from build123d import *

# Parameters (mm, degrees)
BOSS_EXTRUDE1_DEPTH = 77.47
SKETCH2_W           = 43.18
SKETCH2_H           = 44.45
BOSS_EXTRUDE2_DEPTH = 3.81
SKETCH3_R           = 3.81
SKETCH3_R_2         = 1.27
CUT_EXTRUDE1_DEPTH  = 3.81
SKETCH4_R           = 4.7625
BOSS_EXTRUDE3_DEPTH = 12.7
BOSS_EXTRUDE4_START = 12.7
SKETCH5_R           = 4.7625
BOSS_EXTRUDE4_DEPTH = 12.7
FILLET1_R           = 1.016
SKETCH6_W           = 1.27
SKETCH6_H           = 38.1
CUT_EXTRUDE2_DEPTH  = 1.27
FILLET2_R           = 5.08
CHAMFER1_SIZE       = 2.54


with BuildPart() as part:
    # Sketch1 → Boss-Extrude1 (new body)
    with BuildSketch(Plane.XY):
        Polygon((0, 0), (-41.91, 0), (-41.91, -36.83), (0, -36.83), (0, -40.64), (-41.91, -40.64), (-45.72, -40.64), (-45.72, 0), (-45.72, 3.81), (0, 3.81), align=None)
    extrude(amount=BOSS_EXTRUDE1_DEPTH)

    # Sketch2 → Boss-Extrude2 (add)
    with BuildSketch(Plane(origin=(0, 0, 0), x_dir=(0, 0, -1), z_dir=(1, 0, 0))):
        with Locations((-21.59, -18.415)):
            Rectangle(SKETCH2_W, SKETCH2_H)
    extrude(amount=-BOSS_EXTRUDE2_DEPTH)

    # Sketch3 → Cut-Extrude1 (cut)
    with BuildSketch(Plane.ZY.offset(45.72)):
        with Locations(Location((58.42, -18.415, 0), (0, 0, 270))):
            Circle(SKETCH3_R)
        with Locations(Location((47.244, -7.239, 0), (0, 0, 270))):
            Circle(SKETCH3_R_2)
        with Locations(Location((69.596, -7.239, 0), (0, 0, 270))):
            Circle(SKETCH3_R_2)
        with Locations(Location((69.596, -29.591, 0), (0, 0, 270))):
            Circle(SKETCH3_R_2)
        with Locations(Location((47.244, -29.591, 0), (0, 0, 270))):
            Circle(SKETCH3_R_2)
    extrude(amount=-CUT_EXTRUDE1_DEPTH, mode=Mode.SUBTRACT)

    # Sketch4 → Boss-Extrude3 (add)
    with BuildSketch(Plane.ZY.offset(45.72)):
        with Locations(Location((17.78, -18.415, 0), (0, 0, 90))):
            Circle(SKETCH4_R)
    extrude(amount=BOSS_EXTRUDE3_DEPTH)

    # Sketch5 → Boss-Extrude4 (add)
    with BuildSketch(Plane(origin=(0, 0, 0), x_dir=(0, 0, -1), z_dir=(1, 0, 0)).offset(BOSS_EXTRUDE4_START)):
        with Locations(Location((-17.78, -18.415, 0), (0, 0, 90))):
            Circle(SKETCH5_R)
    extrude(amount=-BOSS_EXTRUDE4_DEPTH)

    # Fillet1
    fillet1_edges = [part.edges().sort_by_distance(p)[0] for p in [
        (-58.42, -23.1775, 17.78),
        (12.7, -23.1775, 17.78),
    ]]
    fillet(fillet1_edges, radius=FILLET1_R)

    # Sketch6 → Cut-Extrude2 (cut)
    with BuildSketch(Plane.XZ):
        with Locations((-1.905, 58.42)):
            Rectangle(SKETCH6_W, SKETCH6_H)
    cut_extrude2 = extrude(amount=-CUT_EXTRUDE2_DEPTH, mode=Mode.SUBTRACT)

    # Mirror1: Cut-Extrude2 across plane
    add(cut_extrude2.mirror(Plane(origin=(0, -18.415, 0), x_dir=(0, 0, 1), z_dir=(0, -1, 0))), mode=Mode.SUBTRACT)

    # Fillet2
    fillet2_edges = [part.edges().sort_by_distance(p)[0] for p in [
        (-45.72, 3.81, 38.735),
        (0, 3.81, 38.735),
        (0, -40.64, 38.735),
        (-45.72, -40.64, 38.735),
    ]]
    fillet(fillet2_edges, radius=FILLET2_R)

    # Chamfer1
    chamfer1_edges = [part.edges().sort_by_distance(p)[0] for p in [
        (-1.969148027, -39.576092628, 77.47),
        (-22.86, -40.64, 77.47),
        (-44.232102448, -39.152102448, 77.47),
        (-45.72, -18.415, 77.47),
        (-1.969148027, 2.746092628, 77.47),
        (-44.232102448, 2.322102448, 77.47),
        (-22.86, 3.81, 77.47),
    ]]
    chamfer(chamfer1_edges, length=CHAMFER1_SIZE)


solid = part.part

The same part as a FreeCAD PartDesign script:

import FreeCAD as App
import Part
import Sketcher
Q = App.Units.Quantity


def edges_at(feature, points):
    """Names of the edges that pass closest to the given points."""
    edges = feature.Shape.Edges
    near = lambda p: min(range(len(edges)), key=lambda i: edges[i].distToShape(Part.Vertex(*p))[0])
    return sorted({f"Edge{near(p) + 1}" for p in points})


def add_polygon(sketch, points):
    """Adds a closed chain of lines whose ends are joined by coincident constraints."""
    first, n = sketch.GeometryCount, len(points)
    for a, b in zip(points, points[1:] + points[:1]):
        sketch.addGeometry(Part.LineSegment(App.Vector(*a, 0), App.Vector(*b, 0)), False)
    for i in range(n):
        sketch.addConstraint(Sketcher.Constraint("Coincident", first + i, 2, first + (i + 1) % n, 1))

doc = App.newDocument("Part")
body = doc.addObject("PartDesign::Body", "Body")

sketch1 = body.newObject("Sketcher::SketchObject", "Sketch")
sketch1.AttachmentSupport = (doc.getObject("XY_Plane"), [""])
sketch1.MapMode = "FlatFace"
add_polygon(sketch1, [(-41.9, 0), (0, 0), (0, 3.8), (-45.7, 3.8), (-45.7, -40.6), (0, -40.6), (0, -36.8), (-41.9, -36.8)])
sketch1.addConstraint(Sketcher.Constraint("Horizontal", 0))
sketch1.addConstraint(Sketcher.Constraint("Vertical", 1))
sketch1.addConstraint(Sketcher.Constraint("Horizontal", 2))
sketch1.addConstraint(Sketcher.Constraint("Vertical", 3))
sketch1.addConstraint(Sketcher.Constraint("Horizontal", 4))
sketch1.addConstraint(Sketcher.Constraint("Vertical", 5))
sketch1.addConstraint(Sketcher.Constraint("Horizontal", 6))
sketch1.addConstraint(Sketcher.Constraint("Vertical", 7))
sketch1.addConstraint(Sketcher.Constraint("Coincident", 0, 2, -1, 1))
sketch1.addConstraint(Sketcher.Constraint("PointOnObject", 4, 2, -2))
sketch1.addConstraint(Sketcher.Constraint("Equal", 1, 5))
sketch1.addConstraint(Sketcher.Constraint("DistanceX", 2, 2, 2, 1, Q("1.8 in")))
sketch1.addConstraint(Sketcher.Constraint("DistanceX", 0, 1, 0, 2, Q("1.65 in")))
sketch1.addConstraint(Sketcher.Constraint("DistanceY", 1, 1, 1, 2, Q("0.15 in")))
sketch1.addConstraint(Sketcher.Constraint("DistanceY", 3, 2, 3, 1, Q("1.75 in")))
pad1 = body.newObject("PartDesign::Pad", "Pad")
pad1.Profile = sketch1
pad1.Length = Q("3.05 in")

sketch2 = body.newObject("Sketcher::SketchObject", "Sketch001")
sketch2.AttachmentSupport = (doc.getObject("YZ_Plane"), [""])
sketch2.MapMode = "FlatFace"
add_polygon(sketch2, [(4, 43), (-41, 43), (-41, 0), (4, 0)])
sketch2.addConstraint(Sketcher.Constraint("Horizontal", 0))
sketch2.addConstraint(Sketcher.Constraint("Vertical", 1))
sketch2.addConstraint(Sketcher.Constraint("Horizontal", 2))
sketch2.addConstraint(Sketcher.Constraint("Vertical", 3))
sketch2.addConstraint(Sketcher.Constraint("PointOnObject", 1, 2, -1))
sketch2.addConstraint(Sketcher.Constraint("DistanceY", 1, 2, 1, 1, Q("1.7 in")))
sketch2.addConstraint(Sketcher.Constraint("DistanceX", 0, 2, 0, 1, Q("1.75 in")))
sketch2.addConstraint(Sketcher.Constraint("DistanceX", 0, 2, -1, 1, Q("1.6 in")))
pad2 = body.newObject("PartDesign::Pad", "Pad001")
pad2.Profile = sketch2
pad2.Length = Q("0.15 in")
pad2.Reversed = True

sketch3 = body.newObject("Sketcher::SketchObject", "Sketch002")
sketch3.AttachmentSupport = (doc.getObject("YZ_Plane"), [""])
sketch3.MapMode = "FlatFace"
sketch3.AttachmentOffset = App.Placement(App.Vector(0, 0, -1.8 * 25.4), App.Rotation())
sketch3.addGeometry(Part.Circle(App.Vector(-18.4, 58.4, 0), App.Vector(0, 0, 1), 3.8), False)
sketch3.addGeometry(Part.Circle(App.Vector(-7.2, 47.2, 0), App.Vector(0, 0, 1), 1.3), False)
sketch3.addGeometry(Part.Circle(App.Vector(-7.2, 69.6, 0), App.Vector(0, 0, 1), 1.3), False)
sketch3.addGeometry(Part.Circle(App.Vector(-29.6, 69.6, 0), App.Vector(0, 0, 1), 1.3), False)
sketch3.addGeometry(Part.Circle(App.Vector(-29.6, 47.2, 0), App.Vector(0, 0, 1), 1.3), False)
sketch3.addConstraint(Sketcher.Constraint("Equal", 1, 2))
sketch3.addConstraint(Sketcher.Constraint("Equal", 2, 3))
sketch3.addConstraint(Sketcher.Constraint("Equal", 3, 4))
sketch3.addConstraint(Sketcher.Constraint("Horizontal", 2, 3, 3, 3))
sketch3.addConstraint(Sketcher.Constraint("Horizontal", 1, 3, 4, 3))
sketch3.addConstraint(Sketcher.Constraint("Vertical", 1, 3, 2, 3))
sketch3.addConstraint(Sketcher.Constraint("Vertical", 3, 3, 4, 3))
sketch3.addConstraint(Sketcher.Constraint("Diameter", 0, Q("0.3 in")))
sketch3.addConstraint(Sketcher.Constraint("Diameter", 1, Q("0.1 in")))
sketch3.addConstraint(Sketcher.Constraint("DistanceY", -1, 1, 0, 3, Q("2.3 in")))
sketch3.addConstraint(Sketcher.Constraint("DistanceY", -1, 1, 1, 3, Q("1.86 in")))
sketch3.addConstraint(Sketcher.Constraint("DistanceY", -1, 1, 2, 3, Q("2.74 in")))
sketch3.addConstraint(Sketcher.Constraint("DistanceX", 0, 3, 1, 3, Q("0.44 in")))
sketch3.addConstraint(Sketcher.Constraint("DistanceX", 3, 3, 0, 3, Q("0.44 in")))
sketch3.addConstraint(Sketcher.Constraint("DistanceX", 0, 3, -1, 1, Q("0.725 in")))
pocket1 = body.newObject("PartDesign::Pocket", "Pocket")
pocket1.Profile = sketch3
pocket1.Length = Q("0.15 in")
pocket1.Reversed = True

sketch4 = body.newObject("Sketcher::SketchObject", "Sketch003")
sketch4.AttachmentSupport = (doc.getObject("YZ_Plane"), [""])
sketch4.MapMode = "FlatFace"
sketch4.AttachmentOffset = App.Placement(App.Vector(0, 0, -1.8 * 25.4), App.Rotation())
sketch4.addGeometry(Part.Circle(App.Vector(-18.4, 17.8, 0), App.Vector(0, 0, 1), 4.8), False)
sketch4.addConstraint(Sketcher.Constraint("Diameter", 0, Q("0.375 in")))
sketch4.addConstraint(Sketcher.Constraint("DistanceY", -1, 1, 0, 3, Q("0.7 in")))
sketch4.addConstraint(Sketcher.Constraint("DistanceX", 0, 3, -1, 1, Q("0.725 in")))
pad3 = body.newObject("PartDesign::Pad", "Pad002")
pad3.Profile = sketch4
pad3.Length = Q("0.5 in")
pad3.Reversed = True

sketch5 = body.newObject("Sketcher::SketchObject", "Sketch004")
sketch5.AttachmentSupport = (doc.getObject("YZ_Plane"), [""])
sketch5.MapMode = "FlatFace"
sketch5.AttachmentOffset = App.Placement(App.Vector(0, 0, 0.5 * 25.4), App.Rotation())
sketch5.addGeometry(Part.Circle(App.Vector(-18.4, 17.8, 0), App.Vector(0, 0, 1), 4.8), False)
sketch5.addConstraint(Sketcher.Constraint("Diameter", 0, Q("0.375 in")))
sketch5.addConstraint(Sketcher.Constraint("DistanceY", -1, 1, 0, 3, Q("0.7 in")))
sketch5.addConstraint(Sketcher.Constraint("DistanceX", 0, 3, -1, 1, Q("0.725 in")))
pad4 = body.newObject("PartDesign::Pad", "Pad003")
pad4.Profile = sketch5
pad4.Length = Q("0.5 in")
pad4.Reversed = True
doc.recompute()

fillet = body.newObject("PartDesign::Fillet", "Fillet")
fillet.Base = (pad4, edges_at(pad4, [(-58.42, -23.177, 17.78), (12.7, -23.177, 17.78)]))
fillet.Radius = Q("0.04 in")

sketch6 = body.newObject("Sketcher::SketchObject", "Sketch005")
sketch6.AttachmentSupport = (doc.getObject("XZ_Plane"), [""])
sketch6.MapMode = "FlatFace"
add_polygon(sketch6, [(-2.5, 77.5), (-2.5, 39.4), (-1.3, 39.4), (-1.3, 77.5)])
sketch6.addConstraint(Sketcher.Constraint("Vertical", 0))
sketch6.addConstraint(Sketcher.Constraint("Horizontal", 1))
sketch6.addConstraint(Sketcher.Constraint("Vertical", 2))
sketch6.addConstraint(Sketcher.Constraint("Horizontal", 3))
sketch6.addConstraint(Sketcher.Constraint("DistanceY", 0, 2, 0, 1, Q("1.5 in")))
sketch6.addConstraint(Sketcher.Constraint("DistanceX", 1, 1, 1, 2, Q("0.05 in")))
sketch6.addConstraint(Sketcher.Constraint("DistanceX", 0, 2, -1, 1, Q("0.1 in")))
sketch6.addConstraint(Sketcher.Constraint("DistanceY", -1, 1, 0, 2, Q("1.55 in")))
pocket2 = body.newObject("PartDesign::Pocket", "Pocket001")
pocket2.Profile = sketch6
pocket2.Length = Q("0.05 in")
doc.recompute()

datumplane = body.newObject("PartDesign::Plane", "DatumPlane")
datumplane.AttachmentSupport = (doc.getObject("XZ_Plane"), [""])
datumplane.MapMode = "FlatFace"
datumplane.AttachmentOffset = App.Placement(App.Vector(0, 0, 0.725 * 25.4), App.Rotation())
mirrored = body.newObject("PartDesign::Mirrored", "Mirrored")
mirrored.Originals = [pocket2]
mirrored.MirrorPlane = (datumplane, [""])
body.Tip = mirrored
doc.recompute()

fillet2 = body.newObject("PartDesign::Fillet", "Fillet001")
fillet2.Base = (mirrored, edges_at(mirrored, [
    (-45.72, 3.81, 38.735),
    (0, 3.81, 38.735),
    (0, -40.64, 38.735),
    (-45.72, -40.64, 38.735),
]))
fillet2.Radius = Q("0.2 in")
doc.recompute()

chamfer = body.newObject("PartDesign::Chamfer", "Chamfer")
chamfer.Base = (fillet2, edges_at(fillet2, [
    (-1.969, -39.576, 77.47),
    (-22.86, -40.64, 77.47),
    (-44.232, -39.152, 77.47),
    (-45.72, -18.415, 77.47),
    (-1.969, 2.746, 77.47),
    (-44.232, 2.322, 77.47),
    (-22.86, 3.81, 77.47),
]))
chamfer.Size = Q("0.1 in")

doc.recompute()
